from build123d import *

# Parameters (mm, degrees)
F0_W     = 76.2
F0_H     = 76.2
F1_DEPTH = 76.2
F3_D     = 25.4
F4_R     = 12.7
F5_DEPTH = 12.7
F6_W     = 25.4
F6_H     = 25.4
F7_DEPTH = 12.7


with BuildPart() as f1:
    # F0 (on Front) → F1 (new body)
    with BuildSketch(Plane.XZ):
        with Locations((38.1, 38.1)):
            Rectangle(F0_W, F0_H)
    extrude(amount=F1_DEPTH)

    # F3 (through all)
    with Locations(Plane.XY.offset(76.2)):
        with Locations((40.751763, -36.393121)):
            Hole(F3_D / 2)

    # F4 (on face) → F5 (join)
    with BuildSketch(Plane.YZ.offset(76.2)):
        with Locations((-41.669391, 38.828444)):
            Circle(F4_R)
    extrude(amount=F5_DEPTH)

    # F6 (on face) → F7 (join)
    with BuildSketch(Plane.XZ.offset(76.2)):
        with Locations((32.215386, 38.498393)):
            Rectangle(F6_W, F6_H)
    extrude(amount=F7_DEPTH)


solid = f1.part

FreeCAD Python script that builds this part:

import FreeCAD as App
import Part
import Sketcher
Q = App.Units.Quantity

doc = App.newDocument("Part")
body = doc.addObject("PartDesign::Body", "Body")

sketch1 = body.newObject("Sketcher::SketchObject", "Sketch")
sketch1.AttachmentSupport = (doc.getObject("XZ_Plane"), [""])
sketch1.MapMode = "FlatFace"
sketch1.addGeometry(Part.LineSegment(App.Vector(0, 76, 0), App.Vector(0, 0, 0)), False)
sketch1.addGeometry(Part.LineSegment(App.Vector(0, 0, 0), App.Vector(76, 0, 0)), False)
sketch1.addGeometry(Part.LineSegment(App.Vector(76, 0, 0), App.Vector(76, 76, 0)), False)
sketch1.addGeometry(Part.LineSegment(App.Vector(76, 76, 0), App.Vector(0, 76, 0)), False)
sketch1.addConstraint(Sketcher.Constraint("Coincident", 0, 2, 1, 1))
sketch1.addConstraint(Sketcher.Constraint("Coincident", 1, 2, 2, 1))
sketch1.addConstraint(Sketcher.Constraint("Coincident", 2, 2, 3, 1))
sketch1.addConstraint(Sketcher.Constraint("Coincident", 3, 2, 0, 1))
sketch1.addConstraint(Sketcher.Constraint("Vertical", 0))
sketch1.addConstraint(Sketcher.Constraint("Horizontal", 1))
sketch1.addConstraint(Sketcher.Constraint("Vertical", 2))
sketch1.addConstraint(Sketcher.Constraint("Horizontal", 3))
sketch1.addConstraint(Sketcher.Constraint("Coincident", 0, 2, -1, 1))
sketch1.addConstraint(Sketcher.Constraint("Equal", 3, 0))
sketch1.addConstraint(Sketcher.Constraint("DistanceX", 1, 1, 1, 2, Q("3 in")))
pad1 = body.newObject("PartDesign::Pad", "Pad")
pad1.Profile = sketch1
pad1.Length = Q("3 in")

sketch2 = body.newObject("Sketcher::SketchObject", "Sketch001")
sketch2.AttachmentSupport = (doc.getObject("XY_Plane"), [""])
sketch2.MapMode = "FlatFace"
sketch2.AttachmentOffset = App.Placement(App.Vector(0, 0, 3 * 25.4), App.Rotation())
sketch2.addGeometry(Part.Circle(App.Vector(41, -36, 0), App.Vector(0, 0, 1), 13), False)
sketch2.addConstraint(Sketcher.Constraint("Diameter", 0, Q("1 in")))
sketch2.addConstraint(Sketcher.Constraint("DistanceX", -1, 1, 0, 3, Q("1.6044001 in")))
sketch2.addConstraint(Sketcher.Constraint("DistanceY", 0, 3, -1, 1, Q("1.4328 in")))
doc.recompute()
hole = body.newObject("PartDesign::Hole", "Hole")
hole.Profile = sketch2
hole.ThreadType = "None"
hole.Diameter = Q("1 in")
hole.DepthType = "ThroughAll"

sketch3 = body.newObject("Sketcher::SketchObject", "Sketch002")
sketch3.AttachmentSupport = (doc.getObject("YZ_Plane"), [""])
sketch3.MapMode = "FlatFace"
sketch3.AttachmentOffset = App.Placement(App.Vector(0, 0, 3 * 25.4), App.Rotation())
sketch3.addGeometry(Part.Circle(App.Vector(-42, 39, 0), App.Vector(0, 0, 1), 13), False)
sketch3.addConstraint(Sketcher.Constraint("Diameter", 0, Q("1 in")))
sketch3.addConstraint(Sketcher.Constraint("DistanceX", 0, 3, -1, 1, 41.669391))
sketch3.addConstraint(Sketcher.Constraint("DistanceY", -1, 1, 0, 3, 38.828444))
pad2 = body.newObject("PartDesign::Pad", "Pad001")
pad2.Profile = sketch3
pad2.Length = Q("0.5 in")

sketch4 = body.newObject("Sketcher::SketchObject", "Sketch003")
sketch4.AttachmentSupport = (doc.getObject("XZ_Plane"), [""])
sketch4.MapMode = "FlatFace"
sketch4.AttachmentOffset = App.Placement(App.Vector(0, 0, 3 * 25.4), App.Rotation())
sketch4.addGeometry(Part.LineSegment(App.Vector(20, 51, 0), App.Vector(20, 26, 0)), False)
sketch4.addGeometry(Part.LineSegment(App.Vector(20, 26, 0), App.Vector(45, 26, 0)), False)
sketch4.addGeometry(Part.LineSegment(App.Vector(45, 26, 0), App.Vector(45, 51, 0)), False)
sketch4.addGeometry(Part.LineSegment(App.Vector(45, 51, 0), App.Vector(20, 51, 0)), False)
sketch4.addConstraint(Sketcher.Constraint("Coincident", 0, 2, 1, 1))
sketch4.addConstraint(Sketcher.Constraint("Coincident", 1, 2, 2, 1))
sketch4.addConstraint(Sketcher.Constraint("Coincident", 2, 2, 3, 1))
sketch4.addConstraint(Sketcher.Constraint("Coincident", 3, 2, 0, 1))
sketch4.addConstraint(Sketcher.Constraint("Vertical", 0))
sketch4.addConstraint(Sketcher.Constraint("Horizontal", 1))
sketch4.addConstraint(Sketcher.Constraint("Vertical", 2))
sketch4.addConstraint(Sketcher.Constraint("Horizontal", 3))
sketch4.addConstraint(Sketcher.Constraint("Equal", 3, 0))
sketch4.addConstraint(Sketcher.Constraint("DistanceX", 1, 1, 1, 2, Q("1 in")))
sketch4.addConstraint(Sketcher.Constraint("DistanceX", -1, 1, 0, 2, 19.515386))
sketch4.addConstraint(Sketcher.Constraint("DistanceY", -1, 1, 0, 2, 25.798393))
pad3 = body.newObject("PartDesign::Pad", "Pad002")
pad3.Profile = sketch4
pad3.Length = Q("0.5 in")

doc.recompute()
